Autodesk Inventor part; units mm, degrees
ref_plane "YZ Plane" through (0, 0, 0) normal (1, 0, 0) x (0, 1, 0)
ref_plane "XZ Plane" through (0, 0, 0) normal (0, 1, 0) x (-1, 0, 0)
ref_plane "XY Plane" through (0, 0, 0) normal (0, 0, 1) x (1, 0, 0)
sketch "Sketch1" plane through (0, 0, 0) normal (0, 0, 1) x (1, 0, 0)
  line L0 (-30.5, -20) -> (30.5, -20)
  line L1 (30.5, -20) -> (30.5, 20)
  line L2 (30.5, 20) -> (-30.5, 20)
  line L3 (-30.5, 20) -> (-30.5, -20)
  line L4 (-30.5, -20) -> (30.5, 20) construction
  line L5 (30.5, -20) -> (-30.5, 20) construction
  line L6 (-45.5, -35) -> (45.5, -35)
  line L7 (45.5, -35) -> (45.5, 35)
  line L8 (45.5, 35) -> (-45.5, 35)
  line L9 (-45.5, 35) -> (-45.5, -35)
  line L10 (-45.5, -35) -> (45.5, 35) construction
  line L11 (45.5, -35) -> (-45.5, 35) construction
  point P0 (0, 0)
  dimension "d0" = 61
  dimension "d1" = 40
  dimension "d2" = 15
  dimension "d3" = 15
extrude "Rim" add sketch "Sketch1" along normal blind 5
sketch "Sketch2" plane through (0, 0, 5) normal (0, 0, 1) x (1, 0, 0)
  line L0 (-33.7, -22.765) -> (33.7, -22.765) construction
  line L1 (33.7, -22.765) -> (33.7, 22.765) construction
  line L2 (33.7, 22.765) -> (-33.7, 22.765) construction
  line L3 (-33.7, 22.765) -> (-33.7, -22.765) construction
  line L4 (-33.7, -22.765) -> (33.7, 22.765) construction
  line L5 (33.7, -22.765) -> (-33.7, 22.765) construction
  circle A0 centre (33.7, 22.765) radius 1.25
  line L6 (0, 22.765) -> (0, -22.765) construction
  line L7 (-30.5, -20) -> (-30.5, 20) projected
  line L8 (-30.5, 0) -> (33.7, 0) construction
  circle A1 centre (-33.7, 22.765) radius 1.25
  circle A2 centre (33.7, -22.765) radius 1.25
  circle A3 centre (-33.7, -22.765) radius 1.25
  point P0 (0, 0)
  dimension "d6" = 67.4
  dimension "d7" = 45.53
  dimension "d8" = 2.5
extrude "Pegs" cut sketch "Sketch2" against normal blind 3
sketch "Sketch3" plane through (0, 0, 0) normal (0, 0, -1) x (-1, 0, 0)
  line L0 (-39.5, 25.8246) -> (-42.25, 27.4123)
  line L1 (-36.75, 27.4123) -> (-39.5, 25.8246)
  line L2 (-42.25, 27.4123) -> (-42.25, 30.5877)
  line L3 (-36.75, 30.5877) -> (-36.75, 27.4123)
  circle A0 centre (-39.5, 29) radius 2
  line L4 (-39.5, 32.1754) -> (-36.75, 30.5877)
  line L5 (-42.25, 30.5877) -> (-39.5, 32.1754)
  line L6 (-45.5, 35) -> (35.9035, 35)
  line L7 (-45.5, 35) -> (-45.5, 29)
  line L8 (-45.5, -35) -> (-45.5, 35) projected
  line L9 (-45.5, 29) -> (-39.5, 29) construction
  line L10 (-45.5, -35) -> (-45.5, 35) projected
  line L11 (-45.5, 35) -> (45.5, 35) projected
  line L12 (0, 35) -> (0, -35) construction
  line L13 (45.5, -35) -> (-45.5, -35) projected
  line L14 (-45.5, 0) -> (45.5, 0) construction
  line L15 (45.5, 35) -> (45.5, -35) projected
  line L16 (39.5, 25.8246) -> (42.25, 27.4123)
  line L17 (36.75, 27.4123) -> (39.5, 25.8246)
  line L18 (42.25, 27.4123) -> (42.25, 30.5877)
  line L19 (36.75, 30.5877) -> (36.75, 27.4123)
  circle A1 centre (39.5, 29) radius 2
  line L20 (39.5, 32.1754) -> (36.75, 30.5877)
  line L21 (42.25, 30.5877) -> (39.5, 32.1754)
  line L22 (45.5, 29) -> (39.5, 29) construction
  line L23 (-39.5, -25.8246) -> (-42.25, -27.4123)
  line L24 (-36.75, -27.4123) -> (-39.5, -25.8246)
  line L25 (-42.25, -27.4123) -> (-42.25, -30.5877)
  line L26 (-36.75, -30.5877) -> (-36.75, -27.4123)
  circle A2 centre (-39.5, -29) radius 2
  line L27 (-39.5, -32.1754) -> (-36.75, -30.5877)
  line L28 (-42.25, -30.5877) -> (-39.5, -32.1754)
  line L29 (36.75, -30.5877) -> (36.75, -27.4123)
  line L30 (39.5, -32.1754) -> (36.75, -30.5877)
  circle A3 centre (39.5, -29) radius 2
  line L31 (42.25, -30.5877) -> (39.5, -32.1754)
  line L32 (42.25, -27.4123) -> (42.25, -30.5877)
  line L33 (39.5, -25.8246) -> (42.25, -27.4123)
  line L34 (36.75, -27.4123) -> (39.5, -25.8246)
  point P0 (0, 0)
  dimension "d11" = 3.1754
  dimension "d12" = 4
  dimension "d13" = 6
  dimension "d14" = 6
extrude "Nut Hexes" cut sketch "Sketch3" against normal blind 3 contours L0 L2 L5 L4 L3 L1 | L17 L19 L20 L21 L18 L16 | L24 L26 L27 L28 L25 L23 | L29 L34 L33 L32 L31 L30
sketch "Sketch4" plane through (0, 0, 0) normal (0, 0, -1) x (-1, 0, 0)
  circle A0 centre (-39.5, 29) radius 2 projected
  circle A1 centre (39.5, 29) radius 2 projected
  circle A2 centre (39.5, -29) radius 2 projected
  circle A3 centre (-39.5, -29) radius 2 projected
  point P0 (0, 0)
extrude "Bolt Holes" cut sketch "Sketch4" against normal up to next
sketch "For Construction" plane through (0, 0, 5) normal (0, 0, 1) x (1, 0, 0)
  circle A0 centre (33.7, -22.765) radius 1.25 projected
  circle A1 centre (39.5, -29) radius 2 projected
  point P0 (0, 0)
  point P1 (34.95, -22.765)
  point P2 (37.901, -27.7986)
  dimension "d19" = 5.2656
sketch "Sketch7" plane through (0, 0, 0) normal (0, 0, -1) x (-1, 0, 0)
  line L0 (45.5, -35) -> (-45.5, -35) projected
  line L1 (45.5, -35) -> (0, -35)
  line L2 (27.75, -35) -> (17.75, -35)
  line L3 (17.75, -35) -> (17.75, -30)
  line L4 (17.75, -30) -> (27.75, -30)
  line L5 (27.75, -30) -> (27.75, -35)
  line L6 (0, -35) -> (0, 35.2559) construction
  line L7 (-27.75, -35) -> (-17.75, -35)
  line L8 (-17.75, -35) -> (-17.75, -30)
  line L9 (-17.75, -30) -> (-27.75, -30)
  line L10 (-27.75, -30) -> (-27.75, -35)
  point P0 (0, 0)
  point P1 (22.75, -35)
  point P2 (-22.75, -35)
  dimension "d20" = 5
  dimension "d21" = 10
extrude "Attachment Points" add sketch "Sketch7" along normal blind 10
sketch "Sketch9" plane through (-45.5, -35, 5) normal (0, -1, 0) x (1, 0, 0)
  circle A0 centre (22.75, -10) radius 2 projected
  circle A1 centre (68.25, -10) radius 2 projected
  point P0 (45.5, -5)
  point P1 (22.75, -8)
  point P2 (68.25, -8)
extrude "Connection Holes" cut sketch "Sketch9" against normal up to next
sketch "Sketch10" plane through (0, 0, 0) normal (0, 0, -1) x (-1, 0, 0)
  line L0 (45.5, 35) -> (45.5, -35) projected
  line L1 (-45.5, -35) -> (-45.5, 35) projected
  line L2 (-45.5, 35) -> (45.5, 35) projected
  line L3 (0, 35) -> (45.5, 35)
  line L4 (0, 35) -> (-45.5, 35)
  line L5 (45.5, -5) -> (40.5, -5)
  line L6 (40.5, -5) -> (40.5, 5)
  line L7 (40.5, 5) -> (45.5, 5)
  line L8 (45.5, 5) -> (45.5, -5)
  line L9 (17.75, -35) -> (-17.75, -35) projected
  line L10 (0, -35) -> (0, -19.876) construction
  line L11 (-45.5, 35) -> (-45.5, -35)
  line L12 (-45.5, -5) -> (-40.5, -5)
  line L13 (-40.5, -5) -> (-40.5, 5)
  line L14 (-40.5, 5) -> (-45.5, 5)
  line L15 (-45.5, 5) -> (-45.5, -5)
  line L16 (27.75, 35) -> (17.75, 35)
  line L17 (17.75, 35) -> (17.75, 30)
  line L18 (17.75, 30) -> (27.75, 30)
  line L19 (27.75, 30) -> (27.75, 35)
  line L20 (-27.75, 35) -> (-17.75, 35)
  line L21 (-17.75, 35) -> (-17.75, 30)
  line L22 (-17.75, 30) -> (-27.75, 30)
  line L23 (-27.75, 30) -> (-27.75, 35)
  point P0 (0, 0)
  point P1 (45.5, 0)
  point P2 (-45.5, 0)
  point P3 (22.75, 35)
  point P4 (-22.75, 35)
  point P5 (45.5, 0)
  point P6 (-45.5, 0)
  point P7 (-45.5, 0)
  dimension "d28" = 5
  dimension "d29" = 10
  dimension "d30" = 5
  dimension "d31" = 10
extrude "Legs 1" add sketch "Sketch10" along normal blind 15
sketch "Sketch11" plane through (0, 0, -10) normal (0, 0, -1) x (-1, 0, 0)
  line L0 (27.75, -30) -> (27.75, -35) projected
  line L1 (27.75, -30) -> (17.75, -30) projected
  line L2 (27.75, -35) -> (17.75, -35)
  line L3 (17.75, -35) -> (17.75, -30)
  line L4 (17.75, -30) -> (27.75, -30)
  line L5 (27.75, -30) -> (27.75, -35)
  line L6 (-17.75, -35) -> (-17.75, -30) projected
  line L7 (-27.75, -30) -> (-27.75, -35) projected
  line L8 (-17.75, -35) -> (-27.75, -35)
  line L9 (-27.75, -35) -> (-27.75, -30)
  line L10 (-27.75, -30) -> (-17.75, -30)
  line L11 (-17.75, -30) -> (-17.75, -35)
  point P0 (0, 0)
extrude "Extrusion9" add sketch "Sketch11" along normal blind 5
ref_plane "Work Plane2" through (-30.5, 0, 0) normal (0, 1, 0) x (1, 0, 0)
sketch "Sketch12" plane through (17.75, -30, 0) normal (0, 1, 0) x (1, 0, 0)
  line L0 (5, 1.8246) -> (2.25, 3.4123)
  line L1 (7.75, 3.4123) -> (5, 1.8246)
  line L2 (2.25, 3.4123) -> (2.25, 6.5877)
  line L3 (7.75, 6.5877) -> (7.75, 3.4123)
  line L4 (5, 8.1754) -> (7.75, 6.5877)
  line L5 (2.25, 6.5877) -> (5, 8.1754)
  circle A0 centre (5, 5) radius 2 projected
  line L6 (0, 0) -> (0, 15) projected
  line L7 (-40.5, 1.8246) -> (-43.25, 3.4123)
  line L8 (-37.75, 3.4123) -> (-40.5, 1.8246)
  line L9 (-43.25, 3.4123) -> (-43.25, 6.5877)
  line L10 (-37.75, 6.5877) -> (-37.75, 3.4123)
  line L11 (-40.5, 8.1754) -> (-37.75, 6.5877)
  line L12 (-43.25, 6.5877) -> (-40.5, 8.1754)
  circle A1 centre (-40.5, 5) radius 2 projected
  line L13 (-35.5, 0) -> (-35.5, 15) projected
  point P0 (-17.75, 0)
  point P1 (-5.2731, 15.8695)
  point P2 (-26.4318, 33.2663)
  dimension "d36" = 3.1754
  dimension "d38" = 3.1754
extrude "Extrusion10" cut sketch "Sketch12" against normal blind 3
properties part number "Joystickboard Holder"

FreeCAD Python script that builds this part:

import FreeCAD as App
import Part
import Sketcher

V = App.Vector
Q = App.Units.Quantity

doc = App.newDocument("Part")
body = doc.addObject("PartDesign::Body", "Body")

sketch1 = doc.addObject("Sketcher::SketchObject", "Sketch")
body.addObject(sketch1)
sketch1.AttachmentSupport = (doc.XY_Plane, [""])
sketch1.MapMode = "FlatFace"
sketch1.addGeometry([
    Part.LineSegment(V(-45.5, 35, 0), V(-45.5, -35, 0)),
    Part.LineSegment(V(-45.5, -35, 0), V(45.5, -35, 0)),
    Part.LineSegment(V(45.5, -35, 0), V(45.5, 35, 0)),
    Part.LineSegment(V(45.5, 35, 0), V(-45.5, 35, 0)),
    Part.LineSegment(V(30.5, -20, 0), V(-30.5, -20, 0)),
    Part.LineSegment(V(-30.5, -20, 0), V(-30.5, 20, 0)),
    Part.LineSegment(V(-30.5, 20, 0), V(30.5, 20, 0)),
    Part.LineSegment(V(30.5, 20, 0), V(30.5, -20, 0)),
], False)
sketch1.addConstraint([
    Sketcher.Constraint("Coincident", 0, 2, 1, 1),
    Sketcher.Constraint("Coincident", 1, 2, 2, 1),
    Sketcher.Constraint("Coincident", 2, 2, 3, 1),
    Sketcher.Constraint("Coincident", 3, 2, 0, 1),
    Sketcher.Constraint("Coincident", 4, 2, 5, 1),
    Sketcher.Constraint("Coincident", 5, 2, 6, 1),
    Sketcher.Constraint("Coincident", 6, 2, 7, 1),
    Sketcher.Constraint("Coincident", 7, 2, 4, 1),
    Sketcher.Constraint("Vertical", 0),
    Sketcher.Constraint("Horizontal", 1),
    Sketcher.Constraint("Vertical", 2),
    Sketcher.Constraint("Horizontal", 3),
    Sketcher.Constraint("Horizontal", 4),
    Sketcher.Constraint("Vertical", 5),
    Sketcher.Constraint("Horizontal", 6),
    Sketcher.Constraint("Vertical", 7),
    Sketcher.Constraint("Symmetric", 0, 2, 2, 2, -1, 1),
    Sketcher.Constraint("Symmetric", 4, 2, 6, 2, -1, 1),
    Sketcher.Constraint("DistanceX", 4, 2, 4, 1, Q("61 mm")),
    Sketcher.Constraint("DistanceY", 5, 1, 5, 2, Q("40 mm")),
    Sketcher.Constraint("DistanceX", 0, 2, 4, 2, Q("15 mm")),
    Sketcher.Constraint("DistanceY", 0, 2, 4, 2, Q("15 mm")),
])
pad1 = doc.addObject("PartDesign::Pad", "Pad")
body.addObject(pad1)
pad1.Profile = sketch1
pad1.Length = 5

sketch2 = doc.addObject("Sketcher::SketchObject", "Sketch001")
body.addObject(sketch2)
sketch2.AttachmentSupport = (doc.XY_Plane, [""])
sketch2.MapMode = "FlatFace"
sketch2.AttachmentOffset = App.Placement(V(0, 0, 5), App.Rotation())
sketch2.addGeometry([
    Part.Circle(V(33.7, 22.765, 0), V(0, 0, 1), 1.25),
    Part.Circle(V(-33.7, 22.765, 0), V(0, 0, 1), 1.25),
    Part.Circle(V(33.7, -22.765, 0), V(0, 0, 1), 1.25),
    Part.Circle(V(-33.7, -22.765, 0), V(0, 0, 1), 1.25),
], False)
sketch2.addConstraint([
    Sketcher.Constraint("Equal", 0, 1),
    Sketcher.Constraint("Equal", 1, 2),
    Sketcher.Constraint("Equal", 2, 3),
    Sketcher.Constraint("Symmetric", 1, 3, 2, 3, -1, 1),
    Sketcher.Constraint("Symmetric", 0, 3, 3, 3, -1, 1),
    Sketcher.Constraint("Symmetric", 0, 3, 1, 3, -2),
    Sketcher.Constraint("Diameter", 0, Q("2.5 mm")),
    Sketcher.Constraint("DistanceX", 1, 3, 0, 3, Q("67.4 mm")),
    Sketcher.Constraint("DistanceY", 2, 3, 0, 3, Q("45.53 mm")),
])
pocket1 = doc.addObject("PartDesign::Pocket", "Pocket")
body.addObject(pocket1)
pocket1.Profile = sketch2
pocket1.Length = 3

sketch3 = doc.addObject("Sketcher::SketchObject", "Sketch002")
body.addObject(sketch3)
sketch3.AttachmentSupport = (doc.XY_Plane, [""])
sketch3.MapMode = "FlatFace"
sketch3.addGeometry([
    Part.LineSegment(V(42.25, 27.4123, 0), V(39.5, 25.8246, 0)),
    Part.LineSegment(V(39.5, 25.8246, 0), V(36.75, 27.4123, 0)),
    Part.LineSegment(V(36.75, 27.4123, 0), V(36.75, 30.5877, 0)),
    Part.LineSegment(V(36.75, 30.5877, 0), V(39.5, 32.1754, 0)),
    Part.LineSegment(V(39.5, 32.1754, 0), V(42.25, 30.5877, 0)),
    Part.LineSegment(V(42.25, 30.5877, 0), V(42.25, 27.4123, 0)),
    Part.Circle(V(39.5, 29, 0), V(0, 0, 1), 2),
    Part.LineSegment(V(-36.75, 27.4123, 0), V(-39.5, 25.8246, 0)),
    Part.LineSegment(V(-39.5, 25.8246, 0), V(-42.25, 27.4123, 0)),
    Part.LineSegment(V(-42.25, 27.4123, 0), V(-42.25, 30.5877, 0)),
    Part.LineSegment(V(-42.25, 30.5877, 0), V(-39.5, 32.1754, 0)),
    Part.LineSegment(V(-39.5, 32.1754, 0), V(-36.75, 30.5877, 0)),
    Part.LineSegment(V(-36.75, 30.5877, 0), V(-36.75, 27.4123, 0)),
    Part.Circle(V(-39.5, 29, 0), V(0, 0, 1), 2),
    Part.LineSegment(V(36.75, -27.4123, 0), V(39.5, -25.8246, 0)),
    Part.LineSegment(V(39.5, -25.8246, 0), V(42.25, -27.4123, 0)),
    Part.LineSegment(V(42.25, -27.4123, 0), V(42.25, -30.5877, 0)),
    Part.LineSegment(V(42.25, -30.5877, 0), V(39.5, -32.1754, 0)),
    Part.LineSegment(V(39.5, -32.1754, 0), V(36.75, -30.5877, 0)),
    Part.LineSegment(V(36.75, -30.5877, 0), V(36.75, -27.4123, 0)),
    Part.Circle(V(39.5, -29, 0), V(0, 0, 1), 2),
    Part.LineSegment(V(-36.75, -27.4123, 0), V(-36.75, -30.5877, 0)),
    Part.LineSegment(V(-36.75, -30.5877, 0), V(-39.5, -32.1754, 0)),
    Part.LineSegment(V(-39.5, -32.1754, 0), V(-42.25, -30.5877, 0)),
    Part.LineSegment(V(-42.25, -30.5877, 0), V(-42.25, -27.4123, 0)),
    Part.LineSegment(V(-42.25, -27.4123, 0), V(-39.5, -25.8246, 0)),
    Part.LineSegment(V(-39.5, -25.8246, 0), V(-36.75, -27.4123, 0)),
    Part.Circle(V(-39.5, -29, 0), V(0, 0, 1), 2),
], False)
sketch3.addConstraint([
    Sketcher.Constraint("Coincident", 0, 2, 1, 1),
    Sketcher.Constraint("Coincident", 1, 2, 2, 1),
    Sketcher.Constraint("Coincident", 2, 2, 3, 1),
    Sketcher.Constraint("Coincident", 3, 2, 4, 1),
    Sketcher.Constraint("Coincident", 4, 2, 5, 1),
    Sketcher.Constraint("Coincident", 5, 2, 0, 1),
    Sketcher.Constraint("Coincident", 7, 2, 8, 1),
    Sketcher.Constraint("Coincident", 8, 2, 9, 1),
    Sketcher.Constraint("Coincident", 9, 2, 10, 1),
    Sketcher.Constraint("Coincident", 10, 2, 11, 1),
    Sketcher.Constraint("Coincident", 11, 2, 12, 1),
    Sketcher.Constraint("Coincident", 12, 2, 7, 1),
    Sketcher.Constraint("Coincident", 14, 2, 15, 1),
    Sketcher.Constraint("Coincident", 15, 2, 16, 1),
    Sketcher.Constraint("Coincident", 16, 2, 17, 1),
    Sketcher.Constraint("Coincident", 17, 2, 18, 1),
    Sketcher.Constraint("Coincident", 18, 2, 19, 1),
    Sketcher.Constraint("Coincident", 19, 2, 14, 1),
    Sketcher.Constraint("Coincident", 21, 2, 22, 1),
    Sketcher.Constraint("Coincident", 22, 2, 23, 1),
    Sketcher.Constraint("Coincident", 23, 2, 24, 1),
    Sketcher.Constraint("Coincident", 24, 2, 25, 1),
    Sketcher.Constraint("Coincident", 25, 2, 26, 1),
    Sketcher.Constraint("Coincident", 26, 2, 21, 1),
    Sketcher.Constraint("Vertical", 2),
    Sketcher.Constraint("Vertical", 5),
    Sketcher.Constraint("Vertical", 9),
    Sketcher.Constraint("Vertical", 12),
    Sketcher.Constraint("Vertical", 16),
    Sketcher.Constraint("Vertical", 19),
    Sketcher.Constraint("Vertical", 21),
    Sketcher.Constraint("Vertical", 24),
    Sketcher.Constraint("Equal", 6, 13),
    Sketcher.Constraint("Equal", 13, 20),
    Sketcher.Constraint("Equal", 20, 27),
    Sketcher.Constraint("Symmetric", 13, 3, 20, 3, -1, 1),
    Sketcher.Constraint("Symmetric", 6, 3, 27, 3, -1, 1),
    Sketcher.Constraint("Symmetric", 7, 2, 14, 2, -1, 1),
    Sketcher.Constraint("Symmetric", 8, 2, 15, 2, -1, 1),
    Sketcher.Constraint("Symmetric", 10, 2, 17, 2, -1, 1),
    Sketcher.Constraint("Symmetric", 11, 2, 18, 2, -1, 1),
    Sketcher.Constraint("Symmetric", 2, 2, 21, 2, -1, 1),
    Sketcher.Constraint("Symmetric", 3, 2, 22, 2, -1, 1),
    Sketcher.Constraint("Symmetric", 4, 2, 23, 2, -1, 1),
    Sketcher.Constraint("Symmetric", 0, 2, 25, 2, -1, 1),
    Sketcher.Constraint("Symmetric", 6, 3, 13, 3, -2),
    Sketcher.Constraint("Symmetric", 0, 2, 7, 2, -2),
    Sketcher.Constraint("Symmetric", 5, 2, 8, 2, -2),
    Sketcher.Constraint("Symmetric", 3, 2, 10, 2, -2),
    Sketcher.Constraint("Symmetric", 2, 2, 11, 2, -2),
    Sketcher.Constraint("Parallel", 0, 3),
    Sketcher.Constraint("Parallel", 1, 4),
    Sketcher.Constraint("Parallel", 3, 7),
    Sketcher.Constraint("Parallel", 4, 8),
    Sketcher.Constraint("Parallel", 7, 10),
    Sketcher.Constraint("Parallel", 10, 14),
    Sketcher.Constraint("Parallel", 14, 17),
    Sketcher.Constraint("Parallel", 22, 25),
    Sketcher.Constraint("Parallel", 23, 26),
    Sketcher.Constraint("Horizontal", 2, 2, 4, 2),
    Sketcher.Constraint("Horizontal", 1, 2, 5, 2),
    Sketcher.Constraint("Vertical", 20, 3, 0, 2),
    Sketcher.Constraint("Diameter", 6, Q("4 mm")),
    Sketcher.Constraint("Angle", 0, Q("-150.0002 deg")),
    Sketcher.Constraint("DistanceY", 2, 1, 2, 2, Q("3.1754 mm")),
    Sketcher.Constraint("DistanceY", -1, 1, 6, 3, Q("29 mm")),
    Sketcher.Constraint("DistanceX", 13, 3, 6, 3, Q("79 mm")),
    Sketcher.Constraint("DistanceY", 16, 2, 5, 2, Q("58 mm")),
    Sketcher.Constraint("Distance", 0, Q("3.1754 mm")),
])
pocket2 = doc.addObject("PartDesign::Pocket", "Pocket001")
body.addObject(pocket2)
pocket2.Profile = sketch3
pocket2.Length = 3
pocket2.Reversed = True

sketch4 = doc.addObject("Sketcher::SketchObject", "Sketch003")
body.addObject(sketch4)
sketch4.AttachmentSupport = (doc.XY_Plane, [""])
sketch4.MapMode = "FlatFace"
sketch4.addGeometry([
    Part.Circle(V(39.5, 29, 0), V(0, 0, 1), 2),
    Part.Circle(V(-39.5, 29, 0), V(0, 0, 1), 2),
    Part.Circle(V(-39.5, -29, 0), V(0, 0, 1), 2),
    Part.Circle(V(39.5, -29, 0), V(0, 0, 1), 2),
], False)
sketch4.addConstraint([
    Sketcher.Constraint("Equal", 0, 1),
    Sketcher.Constraint("Equal", 1, 2),
    Sketcher.Constraint("Equal", 2, 3),
    Sketcher.Constraint("Symmetric", 0, 3, 2, 3, -1, 1),
    Sketcher.Constraint("Symmetric", 1, 3, 3, 3, -1, 1),
    Sketcher.Constraint("Symmetric", 0, 3, 1, 3, -2),
    Sketcher.Constraint("Diameter", 0, Q("4 mm")),
    Sketcher.Constraint("DistanceY", -1, 1, 0, 3, Q("29 mm")),
    Sketcher.Constraint("DistanceX", 1, 3, 0, 3, Q("79 mm")),
])
pocket3 = doc.addObject("PartDesign::Pocket", "Pocket002")
body.addObject(pocket3)
pocket3.Profile = sketch4
pocket3.Length = 5
pocket3.Reversed = True

sketch5 = doc.addObject("Sketcher::SketchObject", "Sketch004")
body.addObject(sketch5)
sketch5.AttachmentSupport = (doc.XY_Plane, [""])
sketch5.MapMode = "FlatFace"
sketch5.addGeometry([
    Part.LineSegment(V(27.75, -35, 0), V(17.75, -35, 0)),
    Part.LineSegment(V(17.75, -35, 0), V(17.75, -30, 0)),
    Part.LineSegment(V(17.75, -30, 0), V(27.75, -30, 0)),
    Part.LineSegment(V(27.75, -30, 0), V(27.75, -35, 0)),
    Part.LineSegment(V(-17.75, -35, 0), V(-27.75, -35, 0)),
    Part.LineSegment(V(-27.75, -35, 0), V(-27.75, -30, 0)),
    Part.LineSegment(V(-27.75, -30, 0), V(-17.75, -30, 0)),
    Part.LineSegment(V(-17.75, -30, 0), V(-17.75, -35, 0)),
], False)
sketch5.addConstraint([
    Sketcher.Constraint("Coincident", 0, 2, 1, 1),
    Sketcher.Constraint("Coincident", 1, 2, 2, 1),
    Sketcher.Constraint("Coincident", 2, 2, 3, 1),
    Sketcher.Constraint("Coincident", 3, 2, 0, 1),
    Sketcher.Constraint("Coincident", 4, 2, 5, 1),
    Sketcher.Constraint("Coincident", 5, 2, 6, 1),
    Sketcher.Constraint("Coincident", 6, 2, 7, 1),
    Sketcher.Constraint("Coincident", 7, 2, 4, 1),
    Sketcher.Constraint("Horizontal", 0),
    Sketcher.Constraint("Vertical", 1),
    Sketcher.Constraint("Horizontal", 2),
    Sketcher.Constraint("Vertical", 3),
    Sketcher.Constraint("Horizontal", 4),
    Sketcher.Constraint("Vertical", 5),
    Sketcher.Constraint("Horizontal", 6),
    Sketcher.Constraint("Vertical", 7),
    Sketcher.Constraint("Symmetric", 3, 2, 4, 2, -2),
    Sketcher.Constraint("Symmetric", 1, 2, 6, 2, -2),
    Sketcher.Constraint("DistanceX", 0, 2, 0, 1, Q("10 mm")),
    Sketcher.Constraint("DistanceY", 1, 1, 1, 2, Q("5 mm")),
    Sketcher.Constraint("DistanceY", 0, 2, -1, 1, Q("35 mm")),
    Sketcher.Constraint("DistanceX", 4, 2, 0, 2, Q("45.5 mm")),
])
pad2 = doc.addObject("PartDesign::Pad", "Pad001")
body.addObject(pad2)
pad2.Profile = sketch5
pad2.Length = 10
pad2.Reversed = True

sketch6 = doc.addObject("Sketcher::SketchObject", "Sketch005")
body.addObject(sketch6)
sketch6.AttachmentSupport = (doc.XZ_Plane, [""])
sketch6.MapMode = "FlatFace"
sketch6.AttachmentOffset = App.Placement(V(0, 0, 35), App.Rotation())
sketch6.addGeometry([
    Part.Circle(V(-22.75, -5, 0), V(0, 0, 1), 2),
    Part.Circle(V(22.75, -5, 0), V(0, 0, 1), 2),
], False)
sketch6.addConstraint([
    Sketcher.Constraint("Equal", 0, 1),
    Sketcher.Constraint("Symmetric", 0, 3, 1, 3, -2),
    Sketcher.Constraint("Diameter", 0, Q("4 mm")),
    Sketcher.Constraint("DistanceY", 0, 3, -1, 1, Q("5 mm")),
    Sketcher.Constraint("DistanceX", 0, 3, 1, 3, Q("45.5 mm")),
])
pocket4 = doc.addObject("PartDesign::Pocket", "Pocket003")
body.addObject(pocket4)
pocket4.Profile = sketch6
pocket4.Length = 5

sketch7 = doc.addObject("Sketcher::SketchObject", "Sketch006")
body.addObject(sketch7)
sketch7.AttachmentSupport = (doc.XY_Plane, [""])
sketch7.MapMode = "FlatFace"
sketch7.addGeometry([
    Part.LineSegment(V(-45.5, -5, 0), V(-45.5, 5, 0)),
    Part.LineSegment(V(-45.5, 5, 0), V(-40.5, 5, 0)),
    Part.LineSegment(V(-40.5, 5, 0), V(-40.5, -5, 0)),
    Part.LineSegment(V(-40.5, -5, 0), V(-45.5, -5, 0)),
    Part.LineSegment(V(40.5, 5, 0), V(45.5, 5, 0)),
    Part.LineSegment(V(45.5, 5, 0), V(45.5, -5, 0)),
    Part.LineSegment(V(45.5, -5, 0), V(40.5, -5, 0)),
    Part.LineSegment(V(40.5, -5, 0), V(40.5, 5, 0)),
    Part.LineSegment(V(17.75, 30, 0), V(17.75, 35, 0)),
    Part.LineSegment(V(17.75, 35, 0), V(27.75, 35, 0)),
    Part.LineSegment(V(27.75, 35, 0), V(27.75, 30, 0)),
    Part.LineSegment(V(27.75, 30, 0), V(17.75, 30, 0)),
    Part.LineSegment(V(-27.75, 30, 0), V(-27.75, 35, 0)),
    Part.LineSegment(V(-27.75, 35, 0), V(-17.75, 35, 0)),
    Part.LineSegment(V(-17.75, 35, 0), V(-17.75, 30, 0)),
    Part.LineSegment(V(-17.75, 30, 0), V(-27.75, 30, 0)),
], False)
sketch7.addConstraint([
    Sketcher.Constraint("Coincident", 0, 2, 1, 1),
    Sketcher.Constraint("Coincident", 1, 2, 2, 1),
    Sketcher.Constraint("Coincident", 2, 2, 3, 1),
    Sketcher.Constraint("Coincident", 3, 2, 0, 1),
    Sketcher.Constraint("Coincident", 4, 2, 5, 1),
    Sketcher.Constraint("Coincident", 5, 2, 6, 1),
    Sketcher.Constraint("Coincident", 6, 2, 7, 1),
    Sketcher.Constraint("Coincident", 7, 2, 4, 1),
    Sketcher.Constraint("Coincident", 8, 2, 9, 1),
    Sketcher.Constraint("Coincident", 9, 2, 10, 1),
    Sketcher.Constraint("Coincident", 10, 2, 11, 1),
    Sketcher.Constraint("Coincident", 11, 2, 8, 1),
    Sketcher.Constraint("Coincident", 12, 2, 13, 1),
    Sketcher.Constraint("Coincident", 13, 2, 14, 1),
    Sketcher.Constraint("Coincident", 14, 2, 15, 1),
    Sketcher.Constraint("Coincident", 15, 2, 12, 1),
    Sketcher.Constraint("Vertical", 0),
    Sketcher.Constraint("Horizontal", 1),
    Sketcher.Constraint("Vertical", 2),
    Sketcher.Constraint("Horizontal", 3),
    Sketcher.Constraint("Horizontal", 4),
    Sketcher.Constraint("Vertical", 5),
    Sketcher.Constraint("Horizontal", 6),
    Sketcher.Constraint("Vertical", 7),
    Sketcher.Constraint("Vertical", 8),
    Sketcher.Constraint("Horizontal", 9),
    Sketcher.Constraint("Vertical", 10),
    Sketcher.Constraint("Horizontal", 11),
    Sketcher.Constraint("Vertical", 12),
    Sketcher.Constraint("Horizontal", 13),
    Sketcher.Constraint("Vertical", 14),
    Sketcher.Constraint("Horizontal", 15),
    Sketcher.Constraint("Symmetric", 3, 2, 4, 2, -1, 1),
    Sketcher.Constraint("Symmetric", 1, 2, 6, 2, -1, 1),
    Sketcher.Constraint("Symmetric", 9, 2, 12, 2, -2),
    Sketcher.Constraint("Symmetric", 11, 2, 14, 2, -2),
    Sketcher.Constraint("Horizontal", 1, 2, 4, 2),
    Sketcher.Constraint("Equal", 15, 0),
    Sketcher.Constraint("Equal", 6, 8),
    Sketcher.Constraint("DistanceX", 1, 1, 1, 2, Q("5 mm")),
    Sketcher.Constraint("DistanceX", 9, 1, 9, 2, Q("10 mm")),
    Sketcher.Constraint("DistanceY", -1, 1, 8, 2, Q("35 mm")),
    Sketcher.Constraint("DistanceX", 1, 2, 4, 2, Q("86 mm")),
    Sketcher.Constraint("DistanceX", 12, 2, 8, 2, Q("45.5 mm")),
])
pad3 = doc.addObject("PartDesign::Pad", "Pad002")
body.addObject(pad3)
pad3.Profile = sketch7
pad3.Length = 15
pad3.Reversed = True

sketch8 = doc.addObject("Sketcher::SketchObject", "Sketch007")
body.addObject(sketch8)
sketch8.AttachmentSupport = (doc.XY_Plane, [""])
sketch8.MapMode = "FlatFace"
sketch8.AttachmentOffset = App.Placement(V(0, 0, -10), App.Rotation())
sketch8.addGeometry([
    Part.LineSegment(V(-27.75, -35, 0), V(-27.75, -30, 0)),
    Part.LineSegment(V(-27.75, -30, 0), V(-17.75, -30, 0)),
    Part.LineSegment(V(-17.75, -30, 0), V(-17.75, -35, 0)),
    Part.LineSegment(V(-17.75, -35, 0), V(-27.75, -35, 0)),
    Part.LineSegment(V(27.75, -35, 0), V(17.75, -35, 0)),
    Part.LineSegment(V(17.75, -35, 0), V(17.75, -30, 0)),
    Part.LineSegment(V(17.75, -30, 0), V(27.75, -30, 0)),
    Part.LineSegment(V(27.75, -30, 0), V(27.75, -35, 0)),
], False)
sketch8.addConstraint([
    Sketcher.Constraint("Coincident", 0, 2, 1, 1),
    Sketcher.Constraint("Coincident", 1, 2, 2, 1),
    Sketcher.Constraint("Coincident", 2, 2, 3, 1),
    Sketcher.Constraint("Coincident", 3, 2, 0, 1),
    Sketcher.Constraint("Coincident", 4, 2, 5, 1),
    Sketcher.Constraint("Coincident", 5, 2, 6, 1),
    Sketcher.Constraint("Coincident", 6, 2, 7, 1),
    Sketcher.Constraint("Coincident", 7, 2, 4, 1),
    Sketcher.Constraint("Vertical", 0),
    Sketcher.Constraint("Horizontal", 1),
    Sketcher.Constraint("Vertical", 2),
    Sketcher.Constraint("Horizontal", 3),
    Sketcher.Constraint("Horizontal", 4),
    Sketcher.Constraint("Vertical", 5),
    Sketcher.Constraint("Horizontal", 6),
    Sketcher.Constraint("Vertical", 7),
    Sketcher.Constraint("Symmetric", 2, 2, 4, 2, -2),
    Sketcher.Constraint("Symmetric", 0, 2, 6, 2, -2),
    Sketcher.Constraint("DistanceX", 1, 1, 1, 2, Q("10 mm")),
    Sketcher.Constraint("DistanceY", 0, 1, 0, 2, Q("5 mm")),
    Sketcher.Constraint("DistanceY", 0, 2, -1, 1, Q("30 mm")),
    Sketcher.Constraint("DistanceX", 2, 2, 4, 2, Q("35.5 mm")),
])
pad4 = doc.addObject("PartDesign::Pad", "Pad003")
body.addObject(pad4)
pad4.Profile = sketch8
pad4.Length = 5
pad4.Reversed = True

sketch9 = doc.addObject("Sketcher::SketchObject", "Sketch008")
body.addObject(sketch9)
sketch9.AttachmentSupport = (doc.XZ_Plane, [""])
sketch9.MapMode = "FlatFace"
sketch9.AttachmentOffset = App.Placement(V(0, 0, 30), App.Rotation())
sketch9.addGeometry([
    Part.LineSegment(V(20, -3.4123, 0), V(22.75, -1.8246, 0)),
    Part.LineSegment(V(22.75, -1.8246, 0), V(25.5, -3.4123, 0)),
    Part.LineSegment(V(25.5, -3.4123, 0), V(25.5, -6.5877, 0)),
    Part.LineSegment(V(25.5, -6.5877, 0), V(22.75, -8.1754, 0)),
    Part.LineSegment(V(22.75, -8.1754, 0), V(20, -6.5877, 0)),
    Part.LineSegment(V(20, -6.5877, 0), V(20, -3.4123, 0)),
    Part.Circle(V(22.75, -5, 0), V(0, 0, 1), 2),
    Part.LineSegment(V(-25.5, -3.4123, 0), V(-22.75, -1.8246, 0)),
    Part.LineSegment(V(-22.75, -1.8246, 0), V(-20, -3.4123, 0)),
    Part.LineSegment(V(-20, -3.4123, 0), V(-20, -6.5877, 0)),
    Part.LineSegment(V(-20, -6.5877, 0), V(-22.75, -8.1754, 0)),
    Part.LineSegment(V(-22.75, -8.1754, 0), V(-25.5, -6.5877, 0)),
    Part.LineSegment(V(-25.5, -6.5877, 0), V(-25.5, -3.4123, 0)),
    Part.Circle(V(-22.75, -5, 0), V(0, 0, 1), 2),
], False)
sketch9.addConstraint([
    Sketcher.Constraint("Coincident", 0, 2, 1, 1),
    Sketcher.Constraint("Coincident", 1, 2, 2, 1),
    Sketcher.Constraint("Coincident", 2, 2, 3, 1),
    Sketcher.Constraint("Coincident", 3, 2, 4, 1),
    Sketcher.Constraint("Coincident", 4, 2, 5, 1),
    Sketcher.Constraint("Coincident", 5, 2, 0, 1),
    Sketcher.Constraint("Coincident", 7, 2, 8, 1),
    Sketcher.Constraint("Coincident", 8, 2, 9, 1),
    Sketcher.Constraint("Coincident", 9, 2, 10, 1),
    Sketcher.Constraint("Coincident", 10, 2, 11, 1),
    Sketcher.Constraint("Coincident", 11, 2, 12, 1),
    Sketcher.Constraint("Coincident", 12, 2, 7, 1),
    Sketcher.Constraint("Vertical", 2),
    Sketcher.Constraint("Vertical", 5),
    Sketcher.Constraint("Vertical", 9),
    Sketcher.Constraint("Vertical", 12),
    Sketcher.Constraint("Equal", 6, 13),
    Sketcher.Constraint("Symmetric", 6, 3, 13, 3, -2),
    Sketcher.Constraint("Symmetric", 0, 2, 7, 2, -2),
    Sketcher.Constraint("Symmetric", 5, 2, 8, 2, -2),
    Sketcher.Constraint("Symmetric", 3, 2, 10, 2, -2),
    Sketcher.Constraint("Symmetric", 2, 2, 11, 2, -2),
    Sketcher.Constraint("Parallel", 0, 3),
    Sketcher.Constraint("Parallel", 1, 4),
    Sketcher.Constraint("Parallel", 3, 7),
    Sketcher.Constraint("Parallel", 4, 8),
    Sketcher.Constraint("Parallel", 7, 10),
    Sketcher.Constraint("Horizontal", 2, 2, 4, 2),
    Sketcher.Constraint("Horizontal", 1, 2, 5, 2),
    Sketcher.Constraint("Vertical", 6, 3, 0, 2),
    Sketcher.Constraint("Diameter", 6, Q("4 mm")),
    Sketcher.Constraint("Angle", 0, Q("29.9998 deg")),
    Sketcher.Constraint("DistanceY", 2, 2, 2, 1, Q("3.1754 mm")),
    Sketcher.Constraint("DistanceY", 6, 3, -1, 1, Q("5 mm")),
    Sketcher.Constraint("DistanceX", -1, 1, 4, 2, Q("20 mm")),
    Sketcher.Constraint("Distance", 0, Q("3.1754 mm")),
    Sketcher.Constraint("DistanceY", 6, 3, 0, 2, Q("3.1754 mm")),
])
pocket5 = doc.addObject("PartDesign::Pocket", "Pocket004")
body.addObject(pocket5)
pocket5.Profile = sketch9
pocket5.Length = 3
pocket5.Reversed = True

doc.recompute()
